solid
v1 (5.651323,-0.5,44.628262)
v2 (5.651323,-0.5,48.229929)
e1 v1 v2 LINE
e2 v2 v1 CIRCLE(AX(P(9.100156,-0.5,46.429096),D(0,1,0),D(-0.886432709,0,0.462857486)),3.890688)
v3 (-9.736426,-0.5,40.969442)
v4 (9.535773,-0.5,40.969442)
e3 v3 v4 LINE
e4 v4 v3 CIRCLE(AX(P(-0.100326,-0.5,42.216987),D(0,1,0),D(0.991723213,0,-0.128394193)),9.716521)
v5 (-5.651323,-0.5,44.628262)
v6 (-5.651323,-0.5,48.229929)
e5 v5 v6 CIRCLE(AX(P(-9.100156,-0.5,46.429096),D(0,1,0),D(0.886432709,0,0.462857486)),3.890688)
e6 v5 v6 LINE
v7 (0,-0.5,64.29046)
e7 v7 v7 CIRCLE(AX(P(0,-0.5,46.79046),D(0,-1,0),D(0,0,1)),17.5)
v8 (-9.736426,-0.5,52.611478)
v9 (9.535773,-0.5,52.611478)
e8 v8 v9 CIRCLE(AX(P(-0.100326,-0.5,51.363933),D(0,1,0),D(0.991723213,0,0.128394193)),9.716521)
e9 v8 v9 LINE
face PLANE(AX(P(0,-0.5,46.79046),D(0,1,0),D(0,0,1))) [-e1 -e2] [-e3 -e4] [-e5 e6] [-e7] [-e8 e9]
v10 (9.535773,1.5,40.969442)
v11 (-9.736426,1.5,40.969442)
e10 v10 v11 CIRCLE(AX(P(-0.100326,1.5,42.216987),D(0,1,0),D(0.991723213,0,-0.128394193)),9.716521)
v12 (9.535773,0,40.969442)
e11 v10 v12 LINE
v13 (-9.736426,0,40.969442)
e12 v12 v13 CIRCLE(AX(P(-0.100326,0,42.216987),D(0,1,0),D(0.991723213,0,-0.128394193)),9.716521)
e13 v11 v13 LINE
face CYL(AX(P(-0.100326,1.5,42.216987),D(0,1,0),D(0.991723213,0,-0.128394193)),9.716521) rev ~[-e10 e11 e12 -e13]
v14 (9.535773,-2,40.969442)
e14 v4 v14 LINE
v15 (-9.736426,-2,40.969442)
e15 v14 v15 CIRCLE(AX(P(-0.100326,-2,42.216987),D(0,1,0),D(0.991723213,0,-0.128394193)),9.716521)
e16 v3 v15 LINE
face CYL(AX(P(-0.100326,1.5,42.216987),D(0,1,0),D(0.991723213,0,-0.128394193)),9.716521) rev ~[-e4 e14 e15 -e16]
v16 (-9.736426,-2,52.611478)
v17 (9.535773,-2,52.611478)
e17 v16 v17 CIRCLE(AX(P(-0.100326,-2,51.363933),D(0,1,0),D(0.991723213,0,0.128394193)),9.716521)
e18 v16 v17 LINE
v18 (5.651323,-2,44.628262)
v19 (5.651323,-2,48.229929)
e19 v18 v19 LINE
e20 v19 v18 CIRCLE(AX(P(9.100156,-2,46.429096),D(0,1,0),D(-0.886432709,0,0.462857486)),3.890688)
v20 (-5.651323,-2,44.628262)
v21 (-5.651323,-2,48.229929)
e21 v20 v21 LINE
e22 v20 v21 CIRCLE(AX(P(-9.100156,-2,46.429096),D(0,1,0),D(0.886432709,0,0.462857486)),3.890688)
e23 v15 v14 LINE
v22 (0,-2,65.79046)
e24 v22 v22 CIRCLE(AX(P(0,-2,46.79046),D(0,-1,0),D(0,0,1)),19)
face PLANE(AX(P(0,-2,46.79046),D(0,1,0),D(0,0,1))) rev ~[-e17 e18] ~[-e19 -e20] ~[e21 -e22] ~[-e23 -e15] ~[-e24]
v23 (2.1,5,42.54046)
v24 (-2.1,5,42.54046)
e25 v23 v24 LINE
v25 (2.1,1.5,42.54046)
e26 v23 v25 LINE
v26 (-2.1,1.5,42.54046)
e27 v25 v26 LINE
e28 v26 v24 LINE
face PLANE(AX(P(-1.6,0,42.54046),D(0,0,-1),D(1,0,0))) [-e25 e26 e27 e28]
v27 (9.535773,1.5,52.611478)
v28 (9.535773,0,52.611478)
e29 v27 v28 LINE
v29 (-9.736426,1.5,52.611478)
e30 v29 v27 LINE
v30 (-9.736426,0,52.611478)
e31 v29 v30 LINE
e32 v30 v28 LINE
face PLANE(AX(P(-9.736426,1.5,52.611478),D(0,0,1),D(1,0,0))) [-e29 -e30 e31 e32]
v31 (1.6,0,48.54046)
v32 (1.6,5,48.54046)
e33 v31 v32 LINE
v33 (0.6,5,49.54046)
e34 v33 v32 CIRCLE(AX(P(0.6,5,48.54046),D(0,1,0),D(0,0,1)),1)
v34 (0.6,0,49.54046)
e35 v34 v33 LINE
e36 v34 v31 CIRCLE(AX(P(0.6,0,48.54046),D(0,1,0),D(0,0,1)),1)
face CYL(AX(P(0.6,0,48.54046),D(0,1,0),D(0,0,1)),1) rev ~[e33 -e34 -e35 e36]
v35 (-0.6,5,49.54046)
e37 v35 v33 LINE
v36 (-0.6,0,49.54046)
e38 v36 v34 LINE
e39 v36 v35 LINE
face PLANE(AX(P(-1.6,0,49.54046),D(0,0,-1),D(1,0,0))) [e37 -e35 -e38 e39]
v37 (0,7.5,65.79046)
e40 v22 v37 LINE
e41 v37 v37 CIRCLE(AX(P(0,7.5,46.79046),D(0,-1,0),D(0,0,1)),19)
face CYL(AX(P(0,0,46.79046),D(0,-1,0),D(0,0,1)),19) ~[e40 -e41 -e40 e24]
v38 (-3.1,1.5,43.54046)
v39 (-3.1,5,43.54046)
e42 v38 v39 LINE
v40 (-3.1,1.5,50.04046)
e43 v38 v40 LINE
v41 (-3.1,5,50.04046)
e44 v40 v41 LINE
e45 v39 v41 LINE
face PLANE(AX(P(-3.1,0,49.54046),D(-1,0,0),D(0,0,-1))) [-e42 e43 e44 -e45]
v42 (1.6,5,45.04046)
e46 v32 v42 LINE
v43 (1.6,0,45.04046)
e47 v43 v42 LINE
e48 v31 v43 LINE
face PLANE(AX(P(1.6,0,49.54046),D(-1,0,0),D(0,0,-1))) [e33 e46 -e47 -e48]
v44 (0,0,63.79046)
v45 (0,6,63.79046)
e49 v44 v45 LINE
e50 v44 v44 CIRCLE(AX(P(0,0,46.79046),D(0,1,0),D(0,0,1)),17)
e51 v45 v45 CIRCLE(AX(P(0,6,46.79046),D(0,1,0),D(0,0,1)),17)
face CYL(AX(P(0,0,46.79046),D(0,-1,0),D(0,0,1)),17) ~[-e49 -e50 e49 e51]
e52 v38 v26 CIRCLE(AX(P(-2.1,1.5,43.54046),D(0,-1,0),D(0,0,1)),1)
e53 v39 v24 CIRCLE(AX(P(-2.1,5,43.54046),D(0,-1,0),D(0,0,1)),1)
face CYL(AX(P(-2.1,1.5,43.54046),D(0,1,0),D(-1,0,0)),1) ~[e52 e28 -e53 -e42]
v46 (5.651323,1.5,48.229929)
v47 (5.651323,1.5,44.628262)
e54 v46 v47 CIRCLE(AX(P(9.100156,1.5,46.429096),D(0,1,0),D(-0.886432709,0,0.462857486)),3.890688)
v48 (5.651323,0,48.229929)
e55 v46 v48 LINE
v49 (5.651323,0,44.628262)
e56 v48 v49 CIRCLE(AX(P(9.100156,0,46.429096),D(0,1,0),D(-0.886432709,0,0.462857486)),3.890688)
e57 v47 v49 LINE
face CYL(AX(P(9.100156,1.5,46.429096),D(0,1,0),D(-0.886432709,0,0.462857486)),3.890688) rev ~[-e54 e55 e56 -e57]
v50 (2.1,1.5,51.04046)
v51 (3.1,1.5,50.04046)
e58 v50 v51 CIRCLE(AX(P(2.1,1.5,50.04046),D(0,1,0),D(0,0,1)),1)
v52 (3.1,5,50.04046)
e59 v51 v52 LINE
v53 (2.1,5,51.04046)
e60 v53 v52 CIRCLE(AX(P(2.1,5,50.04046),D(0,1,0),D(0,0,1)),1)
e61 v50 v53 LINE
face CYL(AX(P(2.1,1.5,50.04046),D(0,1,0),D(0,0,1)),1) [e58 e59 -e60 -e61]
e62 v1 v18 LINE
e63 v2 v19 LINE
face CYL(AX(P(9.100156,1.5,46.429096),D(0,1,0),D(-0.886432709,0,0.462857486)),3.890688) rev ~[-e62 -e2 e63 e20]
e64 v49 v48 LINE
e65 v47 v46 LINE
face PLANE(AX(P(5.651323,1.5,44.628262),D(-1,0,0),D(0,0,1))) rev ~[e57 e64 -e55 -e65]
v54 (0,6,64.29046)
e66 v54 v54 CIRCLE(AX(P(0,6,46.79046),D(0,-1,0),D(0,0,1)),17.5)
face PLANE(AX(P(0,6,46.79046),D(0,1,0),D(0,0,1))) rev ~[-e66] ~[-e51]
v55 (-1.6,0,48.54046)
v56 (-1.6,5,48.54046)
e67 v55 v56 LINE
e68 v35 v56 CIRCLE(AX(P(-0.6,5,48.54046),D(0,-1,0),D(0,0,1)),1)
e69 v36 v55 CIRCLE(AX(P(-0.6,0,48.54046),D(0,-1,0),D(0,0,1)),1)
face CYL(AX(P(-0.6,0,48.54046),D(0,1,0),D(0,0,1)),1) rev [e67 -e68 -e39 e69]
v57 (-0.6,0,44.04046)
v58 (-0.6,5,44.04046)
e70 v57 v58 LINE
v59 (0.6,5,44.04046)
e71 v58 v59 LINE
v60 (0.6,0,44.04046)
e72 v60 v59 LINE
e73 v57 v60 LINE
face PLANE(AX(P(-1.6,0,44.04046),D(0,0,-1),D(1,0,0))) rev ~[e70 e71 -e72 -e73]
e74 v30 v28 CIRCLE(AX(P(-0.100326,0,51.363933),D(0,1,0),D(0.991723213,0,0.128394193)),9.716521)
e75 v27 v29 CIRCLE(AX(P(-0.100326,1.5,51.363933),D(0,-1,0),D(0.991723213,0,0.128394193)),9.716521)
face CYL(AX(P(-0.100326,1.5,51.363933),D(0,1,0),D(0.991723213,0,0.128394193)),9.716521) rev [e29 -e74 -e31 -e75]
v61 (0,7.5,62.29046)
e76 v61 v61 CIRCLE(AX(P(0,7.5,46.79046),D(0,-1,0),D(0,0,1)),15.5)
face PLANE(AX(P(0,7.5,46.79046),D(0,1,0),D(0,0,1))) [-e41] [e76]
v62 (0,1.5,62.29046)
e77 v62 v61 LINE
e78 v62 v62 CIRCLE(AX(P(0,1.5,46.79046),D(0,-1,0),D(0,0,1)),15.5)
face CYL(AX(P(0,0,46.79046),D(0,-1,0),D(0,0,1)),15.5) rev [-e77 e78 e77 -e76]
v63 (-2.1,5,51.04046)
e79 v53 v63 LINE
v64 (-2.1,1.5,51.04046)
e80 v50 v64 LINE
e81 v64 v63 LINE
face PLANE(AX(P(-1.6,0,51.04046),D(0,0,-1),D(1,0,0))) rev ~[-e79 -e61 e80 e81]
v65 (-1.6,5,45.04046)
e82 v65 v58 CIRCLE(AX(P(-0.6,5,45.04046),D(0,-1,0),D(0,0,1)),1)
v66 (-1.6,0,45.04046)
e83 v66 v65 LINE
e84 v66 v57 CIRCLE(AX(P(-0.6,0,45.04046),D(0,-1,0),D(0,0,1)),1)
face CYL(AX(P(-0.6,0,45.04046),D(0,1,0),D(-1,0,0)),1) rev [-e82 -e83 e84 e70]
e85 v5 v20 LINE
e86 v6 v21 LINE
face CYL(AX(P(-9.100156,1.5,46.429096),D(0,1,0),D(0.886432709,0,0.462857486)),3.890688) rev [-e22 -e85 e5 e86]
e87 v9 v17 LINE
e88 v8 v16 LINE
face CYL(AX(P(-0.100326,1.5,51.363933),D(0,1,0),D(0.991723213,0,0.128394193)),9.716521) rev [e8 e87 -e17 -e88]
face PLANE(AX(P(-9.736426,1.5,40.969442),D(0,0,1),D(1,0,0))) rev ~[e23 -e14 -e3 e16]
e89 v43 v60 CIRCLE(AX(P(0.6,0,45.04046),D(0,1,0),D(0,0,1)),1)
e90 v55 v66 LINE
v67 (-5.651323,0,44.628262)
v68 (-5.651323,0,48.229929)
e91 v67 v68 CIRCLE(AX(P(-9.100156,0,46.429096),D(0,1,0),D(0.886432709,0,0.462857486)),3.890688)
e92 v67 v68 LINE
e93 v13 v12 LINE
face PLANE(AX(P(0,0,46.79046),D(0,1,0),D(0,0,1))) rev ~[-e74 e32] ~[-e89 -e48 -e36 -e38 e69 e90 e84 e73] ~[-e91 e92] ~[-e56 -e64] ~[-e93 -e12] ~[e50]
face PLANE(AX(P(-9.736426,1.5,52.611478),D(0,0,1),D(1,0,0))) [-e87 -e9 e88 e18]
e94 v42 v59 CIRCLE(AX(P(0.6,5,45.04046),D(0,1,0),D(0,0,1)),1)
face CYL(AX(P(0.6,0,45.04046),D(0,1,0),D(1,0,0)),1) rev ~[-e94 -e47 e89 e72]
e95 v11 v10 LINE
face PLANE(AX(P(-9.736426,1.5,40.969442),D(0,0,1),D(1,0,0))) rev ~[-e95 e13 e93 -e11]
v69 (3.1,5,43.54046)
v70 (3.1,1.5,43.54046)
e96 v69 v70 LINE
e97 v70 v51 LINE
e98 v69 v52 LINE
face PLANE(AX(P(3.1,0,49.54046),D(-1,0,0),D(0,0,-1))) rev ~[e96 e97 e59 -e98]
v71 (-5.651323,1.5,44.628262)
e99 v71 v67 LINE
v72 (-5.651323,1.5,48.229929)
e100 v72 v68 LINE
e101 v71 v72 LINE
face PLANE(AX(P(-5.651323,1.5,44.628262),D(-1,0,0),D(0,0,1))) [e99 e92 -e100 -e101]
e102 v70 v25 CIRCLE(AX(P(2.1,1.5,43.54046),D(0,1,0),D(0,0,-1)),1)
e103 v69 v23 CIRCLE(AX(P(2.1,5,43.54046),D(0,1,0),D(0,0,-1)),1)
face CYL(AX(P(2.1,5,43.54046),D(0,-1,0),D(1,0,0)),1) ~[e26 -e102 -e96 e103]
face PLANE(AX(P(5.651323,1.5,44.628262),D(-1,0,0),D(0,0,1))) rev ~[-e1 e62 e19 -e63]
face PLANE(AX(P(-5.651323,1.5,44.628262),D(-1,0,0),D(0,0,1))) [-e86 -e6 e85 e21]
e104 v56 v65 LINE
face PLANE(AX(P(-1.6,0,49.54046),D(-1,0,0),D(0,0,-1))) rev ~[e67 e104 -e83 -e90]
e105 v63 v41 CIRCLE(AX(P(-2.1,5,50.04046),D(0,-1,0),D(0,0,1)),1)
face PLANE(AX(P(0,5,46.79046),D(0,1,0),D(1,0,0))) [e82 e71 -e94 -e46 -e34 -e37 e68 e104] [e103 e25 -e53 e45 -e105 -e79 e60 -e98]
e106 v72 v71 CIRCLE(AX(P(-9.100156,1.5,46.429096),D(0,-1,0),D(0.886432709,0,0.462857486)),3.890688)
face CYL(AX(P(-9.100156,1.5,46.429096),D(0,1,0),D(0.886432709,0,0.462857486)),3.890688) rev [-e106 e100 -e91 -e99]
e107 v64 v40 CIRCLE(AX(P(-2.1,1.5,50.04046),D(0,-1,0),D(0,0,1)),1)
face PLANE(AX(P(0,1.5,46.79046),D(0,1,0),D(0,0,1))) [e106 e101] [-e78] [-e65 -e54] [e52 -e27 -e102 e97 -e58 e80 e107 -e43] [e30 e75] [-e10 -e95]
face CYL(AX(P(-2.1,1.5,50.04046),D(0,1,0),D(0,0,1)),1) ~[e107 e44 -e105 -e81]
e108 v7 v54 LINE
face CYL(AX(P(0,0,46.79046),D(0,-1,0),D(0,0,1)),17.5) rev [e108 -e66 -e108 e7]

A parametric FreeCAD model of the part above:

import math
import FreeCAD as App
import Part
import Sketcher
Q = App.Units.Quantity


def edges_at(feature, points):
    """Names of the edges that pass closest to the given points."""
    edges = feature.Shape.Edges
    near = lambda p: min(range(len(edges)), key=lambda i: edges[i].distToShape(Part.Vertex(*p))[0])
    return sorted({f"Edge{near(p) + 1}" for p in points})


def faces_at(feature, points):
    """Names of the faces that lie closest to the given points."""
    faces = feature.Shape.Faces
    near = lambda p: min(range(len(faces)), key=lambda i: faces[i].distToShape(Part.Vertex(*p))[0])
    return sorted({f"Face{near(p) + 1}" for p in points})

doc = App.newDocument("Part")
params = doc.addObject("Spreadsheet::Sheet", "Params")
for row, (alias, value) in enumerate([
    ("sketch1_diameter", "34 mm"),
    ("pad1_length", "6 mm"),
    ("thickness_wall", "0.5 mm"),
    ("sketch2_width", "3.2 mm"),
    ("sketch2_height", "5.5 mm"),
    ("pad2_length", "5 mm"),
    ("thickness2_wall", "1.5 mm"),
    ("fillet_radius", "1 mm"),
], start=1):
    params.set(f"A{row}", alias)
    params.set(f"B{row}", "=" + value)
    params.setAlias(f"B{row}", alias)

body = doc.addObject("PartDesign::Body", "Body")

sketch1 = body.newObject("Sketcher::SketchObject", "Sketch")
sketch1.AttachmentSupport = (doc.getObject("XZ_Plane"), [""])
sketch1.MapMode = "FlatFace"
sketch1.addGeometry(Part.Circle(App.Vector(0, 47, 0), App.Vector(0, 0, 1), 17), False)
sketch1.addConstraint([
    Sketcher.Constraint("PointOnObject", 0, 3, -2),
    Sketcher.Constraint("Diameter", 0, Q("34 mm")),
    Sketcher.Constraint("DistanceY", -1, 1, 0, 3, Q("46.79046 mm")),
])
sketch1.setExpression("Constraints[1]", "Params.sketch1_diameter")
pad1 = body.newObject("PartDesign::Pad", "Pad")
pad1.Profile = sketch1
pad1.setExpression("Length", "Params.pad1_length")
pad1.Reversed = True
doc.recompute()

thickness = body.newObject("PartDesign::Thickness", "Thickness")
thickness.Base = (pad1, faces_at(pad1, [(0, 6, 46.79)]))
thickness.setExpression("Value", "Params.thickness_wall")
thickness.Reversed = False
thickness.Join = "Intersection"

sketch2 = body.newObject("Sketcher::SketchObject", "Sketch001")
sketch2.AttachmentSupport = (doc.getObject("XZ_Plane"), [""])
sketch2.MapMode = "FlatFace"
sketch2.addGeometry([
    Part.LineSegment(App.Vector(-1.6, 44, 0), App.Vector(-1.6, 49.5, 0)),
    Part.LineSegment(App.Vector(-1.6, 49.5, 0), App.Vector(1.6, 49.5, 0)),
    Part.LineSegment(App.Vector(1.6, 49.5, 0), App.Vector(1.6, 44, 0)),
    Part.LineSegment(App.Vector(1.6, 44, 0), App.Vector(-1.6, 44, 0)),
], False)
sketch2.addConstraint([
    Sketcher.Constraint("Coincident", 0, 2, 1, 1),
    Sketcher.Constraint("Coincident", 1, 2, 2, 1),
    Sketcher.Constraint("Coincident", 2, 2, 3, 1),
    Sketcher.Constraint("Coincident", 3, 2, 0, 1),
    Sketcher.Constraint("Vertical", 0),
    Sketcher.Constraint("Horizontal", 1),
    Sketcher.Constraint("Vertical", 2),
    Sketcher.Constraint("Horizontal", 3),
    Sketcher.Constraint("DistanceX", 1, 1, 1, 2, Q("3.2 mm")),
    Sketcher.Constraint("DistanceY", 0, 1, 0, 2, Q("5.5 mm")),
    Sketcher.Constraint("DistanceX", 0, 2, -1, 1, Q("1.6 mm")),
    Sketcher.Constraint("DistanceY", -1, 1, 0, 2, Q("49.54046 mm")),
])
sketch2.setExpression("Constraints[8]", "Params.sketch2_width")
sketch2.setExpression("Constraints[9]", "Params.sketch2_height")
pad2 = body.newObject("PartDesign::Pad", "Pad001")
pad2.Profile = sketch2
pad2.setExpression("Length", "Params.pad2_length")
pad2.Reversed = True
doc.recompute()

thickness2 = body.newObject("PartDesign::Thickness", "Thickness001")
thickness2.Base = (pad2, faces_at(pad2, [(0, 5, 46.79)]))
thickness2.setExpression("Value", "Params.thickness2_wall")
thickness2.Reversed = False
thickness2.Join = "Intersection"

sketch3 = body.newObject("Sketcher::SketchObject", "Sketch002")
sketch3.AttachmentSupport = (doc.getObject("XZ_Plane"), [""])
sketch3.MapMode = "FlatFace"
sketch3.AttachmentOffset = App.Placement(App.Vector(0, 0, -1.5), App.Rotation())
sketch3.addGeometry([
    Part.LineSegment(App.Vector(-9.7, 41, 0), App.Vector(9.5, 41, 0)),
    Part.ArcOfCircle(Part.Circle(App.Vector(-0.1, 42.2, 0), App.Vector(0, 0, 1), 9.7), math.radians(-173), math.radians(-7)),
    Part.LineSegment(App.Vector(9.5, 52.6, 0), App.Vector(-9.7, 52.6, 0)),
    Part.ArcOfCircle(Part.Circle(App.Vector(-0.1, 51.4, 0), App.Vector(0, 0, 1), 9.7), math.radians(7), math.radians(173)),
    Part.LineSegment(App.Vector(-5.7, 48.2, 0), App.Vector(-5.7, 44.6, 0)),
    Part.ArcOfCircle(Part.Circle(App.Vector(-9.1, 46.4, 0), App.Vector(0, 0, 1), 3.9), math.radians(28), math.radians(332)),
    Part.LineSegment(App.Vector(5.7, 44.6, 0), App.Vector(5.7, 48.2, 0)),
    Part.ArcOfCircle(Part.Circle(App.Vector(9.1, 46.4, 0), App.Vector(0, 0, 1), 3.9), math.radians(-152), math.radians(152)),
], False)
sketch3.addConstraint([
    Sketcher.Constraint("Coincident", 0, 1, 1, 1),
    Sketcher.Constraint("Coincident", 1, 2, 0, 2),
    Sketcher.Constraint("Coincident", 2, 1, 3, 1),
    Sketcher.Constraint("Coincident", 3, 2, 2, 2),
    Sketcher.Constraint("Coincident", 4, 1, 5, 1),
    Sketcher.Constraint("Coincident", 5, 2, 4, 2),
    Sketcher.Constraint("Coincident", 6, 1, 7, 1),
    Sketcher.Constraint("Coincident", 7, 2, 6, 2),
    Sketcher.Constraint("Horizontal", 0),
    Sketcher.Constraint("Horizontal", 2),
    Sketcher.Constraint("Vertical", 4),
    Sketcher.Constraint("Vertical", 6),
    Sketcher.Constraint("Equal", 1, 3),
    Sketcher.Constraint("Equal", 5, 7),
    Sketcher.Constraint("Symmetric", 5, 3, 7, 3, -2),
    Sketcher.Constraint("Horizontal", 5, 2, 6, 1),
    Sketcher.Constraint("Vertical", 1, 3, 3, 3),
    Sketcher.Constraint("Vertical", 1, 2, 2, 1),
    Sketcher.Constraint("Radius", 1, Q("9.716521 mm")),
    Sketcher.Constraint("DistanceX", 0, 1, 0, 2, Q("19.272199 mm")),
    Sketcher.Constraint("Radius", 5, Q("3.890688 mm")),
    Sketcher.Constraint("DistanceY", 4, 2, 4, 1, Q("3.601668 mm")),
    Sketcher.Constraint("DistanceY", -1, 1, 4, 1, Q("48.229929 mm")),
    Sketcher.Constraint("DistanceX", 5, 3, 1, 3, Q("8.999829 mm")),
    Sketcher.Constraint("DistanceY", 1, 3, 5, 3, Q("4.212108 mm")),
    Sketcher.Constraint("DistanceX", 5, 3, 7, 3, Q("18.200311 mm")),
    Sketcher.Constraint("DistanceY", 0, 1, 3, 3, Q("10.394491 mm")),
])
pocket1 = body.newObject("PartDesign::Pocket", "Pocket")
pocket1.Profile = sketch3
pocket1.Type = "ThroughAll"
pocket1.Reversed = True
doc.recompute()

fillet = body.newObject("PartDesign::Fillet", "Fillet")
fillet.Base = (pocket1, edges_at(pocket1, [
    (3.1, 3.25, 51.04),
    (3.1, 3.25, 42.54),
    (-3.1, 3.25, 42.54),
    (-3.1, 3.25, 51.04),
    (1.6, 2.5, 49.54),
    (1.6, 2.5, 44.04),
    (-1.6, 2.5, 44.04),
    (-1.6, 2.5, 49.54),
]))
fillet.setExpression("Radius", "Params.fillet_radius")

doc.recompute()
